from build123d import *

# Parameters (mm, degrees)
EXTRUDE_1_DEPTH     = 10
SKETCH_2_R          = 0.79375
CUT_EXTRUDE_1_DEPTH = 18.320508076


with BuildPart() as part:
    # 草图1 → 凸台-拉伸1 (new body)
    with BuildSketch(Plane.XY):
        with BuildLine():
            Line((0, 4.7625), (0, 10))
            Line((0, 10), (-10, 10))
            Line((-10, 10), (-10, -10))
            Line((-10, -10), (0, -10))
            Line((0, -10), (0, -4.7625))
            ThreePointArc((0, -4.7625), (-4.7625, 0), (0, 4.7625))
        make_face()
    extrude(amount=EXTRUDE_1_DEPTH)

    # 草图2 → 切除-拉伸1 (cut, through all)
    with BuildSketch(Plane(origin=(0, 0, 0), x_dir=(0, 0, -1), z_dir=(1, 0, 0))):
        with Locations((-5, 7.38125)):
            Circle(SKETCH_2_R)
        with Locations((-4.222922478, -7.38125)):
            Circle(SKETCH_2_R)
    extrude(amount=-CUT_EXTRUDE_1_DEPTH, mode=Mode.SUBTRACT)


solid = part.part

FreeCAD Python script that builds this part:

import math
import FreeCAD as App
import Part
import Sketcher
from FreeCAD import Vector
Q = App.Units.Quantity

doc = App.newDocument("Part")
body = doc.addObject("PartDesign::Body", "Body")

# Sketch on XY plane
sketch1 = body.newObject("Sketcher::SketchObject", "Sketch")
sketch1.AttachmentSupport = (doc.getObject("XY_Plane"), [""])
sketch1.MapMode = "FlatFace"
sketch1.addGeometry([
    Part.LineSegment(Vector(0, 4.8, 0), Vector(0, 10, 0)),  # 0
    Part.LineSegment(Vector(0, 10, 0), Vector(-10, 10, 0)),  # 1
    Part.LineSegment(Vector(-10, 10, 0), Vector(-10, -10, 0)),  # 2
    Part.LineSegment(Vector(-10, -10, 0), Vector(0, -10, 0)),  # 3
    Part.LineSegment(Vector(0, -10, 0), Vector(0, -4.8, 0)),  # 4
    Part.ArcOfCircle(Part.Circle(Vector(0, 0, 0), Vector(0, 0, 1), 4.8), math.radians(90), math.radians(270)),  # 5
], False)
sketch1.addConstraint([
    Sketcher.Constraint("Coincident", 0, 2, 1, 1),
    Sketcher.Constraint("Coincident", 1, 2, 2, 1),
    Sketcher.Constraint("Coincident", 2, 2, 3, 1),
    Sketcher.Constraint("Coincident", 3, 2, 4, 1),
    Sketcher.Constraint("Coincident", 4, 2, 5, 2),
    Sketcher.Constraint("Coincident", 5, 1, 0, 1),
    Sketcher.Constraint("Vertical", 0),
    Sketcher.Constraint("Horizontal", 1),
    Sketcher.Constraint("Vertical", 2),
    Sketcher.Constraint("Horizontal", 3),
    Sketcher.Constraint("Vertical", 4),
    Sketcher.Constraint("Coincident", 5, 3, -1, 1),
    Sketcher.Constraint("Symmetric", 0, 2, 3, 2, -1, 1),
    Sketcher.Constraint("PointOnObject", 0, 2, -2),
    Sketcher.Constraint("DistanceX", 1, 2, 1, 1, Q("10 mm")),
    Sketcher.Constraint("DistanceY", 2, 2, 2, 1, Q("20 mm")),
    Sketcher.Constraint("Radius", 5, Q("4.7625 mm")),
])
pad1 = body.newObject("PartDesign::Pad", "Pad")
pad1.Profile = sketch1
pad1.Length = 10

# Sketch on YZ plane
sketch2 = body.newObject("Sketcher::SketchObject", "Sketch001")
sketch2.AttachmentSupport = (doc.getObject("YZ_Plane"), [""])
sketch2.MapMode = "FlatFace"
sketch2.addGeometry([
    Part.Circle(Vector(7.4, 5, 0), Vector(0, 0, 1), 0.8),
    Part.Circle(Vector(-7.4, 4.2, 0), Vector(0, 0, 1), 0.8),
], False)
sketch2.addConstraint([
    Sketcher.Constraint("Equal", 0, 1),
    Sketcher.Constraint("DistanceY", -1, 1, 0, 3, Q("5 mm")),
    Sketcher.Constraint("Diameter", 0, Q("1.5875 mm")),
    Sketcher.Constraint("DistanceX", 1, 3, 0, 3, Q("14.7625 mm")),
    Sketcher.Constraint("DistanceX", -1, 1, 0, 3, Q("7.38125 mm")),
    Sketcher.Constraint("DistanceY", -1, 1, 1, 3, Q("4.222922 mm")),
])
pocket1 = body.newObject("PartDesign::Pocket", "Pocket")
pocket1.Profile = sketch2
pocket1.Type = "ThroughAll"

doc.recompute()
